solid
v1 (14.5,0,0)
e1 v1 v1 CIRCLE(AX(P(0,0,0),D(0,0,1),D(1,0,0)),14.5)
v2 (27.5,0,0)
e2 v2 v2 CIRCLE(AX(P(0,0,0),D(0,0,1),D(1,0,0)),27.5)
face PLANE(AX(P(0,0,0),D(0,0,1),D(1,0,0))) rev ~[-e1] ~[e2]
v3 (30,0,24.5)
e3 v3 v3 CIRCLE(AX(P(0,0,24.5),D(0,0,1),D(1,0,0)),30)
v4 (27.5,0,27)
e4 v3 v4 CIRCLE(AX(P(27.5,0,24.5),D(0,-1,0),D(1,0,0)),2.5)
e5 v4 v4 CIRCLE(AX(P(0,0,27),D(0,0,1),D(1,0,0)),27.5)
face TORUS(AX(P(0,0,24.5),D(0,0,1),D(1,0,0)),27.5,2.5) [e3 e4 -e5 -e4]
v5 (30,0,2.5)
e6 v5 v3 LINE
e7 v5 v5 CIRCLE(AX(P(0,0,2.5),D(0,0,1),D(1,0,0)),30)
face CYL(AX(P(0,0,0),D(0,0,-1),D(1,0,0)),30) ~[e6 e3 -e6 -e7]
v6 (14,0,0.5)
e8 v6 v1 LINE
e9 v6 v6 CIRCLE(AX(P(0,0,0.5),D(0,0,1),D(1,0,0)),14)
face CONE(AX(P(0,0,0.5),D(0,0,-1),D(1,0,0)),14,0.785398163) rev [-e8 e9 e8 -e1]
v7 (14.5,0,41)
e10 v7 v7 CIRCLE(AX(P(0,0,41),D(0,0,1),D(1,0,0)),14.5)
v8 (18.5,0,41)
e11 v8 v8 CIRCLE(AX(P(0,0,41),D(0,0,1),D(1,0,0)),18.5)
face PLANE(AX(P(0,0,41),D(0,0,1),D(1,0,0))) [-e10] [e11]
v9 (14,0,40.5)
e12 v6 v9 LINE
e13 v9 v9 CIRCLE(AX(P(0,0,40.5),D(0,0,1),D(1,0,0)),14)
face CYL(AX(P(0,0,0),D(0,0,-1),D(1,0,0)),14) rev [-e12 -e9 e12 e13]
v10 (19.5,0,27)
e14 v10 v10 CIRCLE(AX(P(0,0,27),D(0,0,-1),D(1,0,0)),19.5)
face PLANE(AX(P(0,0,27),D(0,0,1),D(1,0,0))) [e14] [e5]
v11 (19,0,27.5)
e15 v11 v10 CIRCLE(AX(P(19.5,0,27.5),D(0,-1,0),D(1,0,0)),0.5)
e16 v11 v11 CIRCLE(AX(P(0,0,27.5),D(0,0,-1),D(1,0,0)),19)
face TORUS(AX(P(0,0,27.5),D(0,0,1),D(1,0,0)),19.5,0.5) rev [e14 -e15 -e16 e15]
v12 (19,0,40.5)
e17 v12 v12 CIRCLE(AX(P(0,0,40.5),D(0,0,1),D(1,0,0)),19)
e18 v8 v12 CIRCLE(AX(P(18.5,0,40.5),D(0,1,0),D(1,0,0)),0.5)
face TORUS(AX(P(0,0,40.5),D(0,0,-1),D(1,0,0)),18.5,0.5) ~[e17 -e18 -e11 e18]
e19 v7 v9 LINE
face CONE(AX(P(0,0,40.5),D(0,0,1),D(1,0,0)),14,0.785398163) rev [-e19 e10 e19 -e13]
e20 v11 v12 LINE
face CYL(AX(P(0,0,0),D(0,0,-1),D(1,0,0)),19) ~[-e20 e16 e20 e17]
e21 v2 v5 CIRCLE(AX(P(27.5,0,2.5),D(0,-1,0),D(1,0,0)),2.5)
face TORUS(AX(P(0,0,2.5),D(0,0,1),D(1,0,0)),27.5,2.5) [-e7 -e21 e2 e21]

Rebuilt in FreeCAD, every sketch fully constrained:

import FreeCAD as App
import Part
import Sketcher
Q = App.Units.Quantity


def edges_at(feature, points):
    """Names of the edges that pass closest to the given points."""
    edges = feature.Shape.Edges
    near = lambda p: min(range(len(edges)), key=lambda i: edges[i].distToShape(Part.Vertex(*p))[0])
    return sorted({f"Edge{near(p) + 1}" for p in points})

doc = App.newDocument("Part")
body = doc.addObject("PartDesign::Body", "Body")

sketch1 = body.newObject("Sketcher::SketchObject", "Sketch")
sketch1.AttachmentSupport = (doc.getObject("XY_Plane"), [""])
sketch1.MapMode = "FlatFace"
sketch1.addGeometry(Part.Circle(App.Vector(0, 0, 0), App.Vector(0, 0, 1), 30), False)
sketch1.addGeometry(Part.Circle(App.Vector(0, 0, 0), App.Vector(0, 0, 1), 14), False)
sketch1.addConstraint(Sketcher.Constraint("Coincident", 0, 3, -1, 1))
sketch1.addConstraint(Sketcher.Constraint("Coincident", 1, 3, -1, 1))
sketch1.addConstraint(Sketcher.Constraint("Diameter", 0, Q("60 mm")))
sketch1.addConstraint(Sketcher.Constraint("Diameter", 1, Q("28 mm")))
pad1 = body.newObject("PartDesign::Pad", "Pad")
pad1.Profile = sketch1
pad1.Length = 27

sketch2 = body.newObject("Sketcher::SketchObject", "Sketch001")
sketch2.AttachmentSupport = (doc.getObject("XY_Plane"), [""])
sketch2.MapMode = "FlatFace"
sketch2.addGeometry(Part.Circle(App.Vector(0, 0, 0), App.Vector(0, 0, 1), 19), False)
sketch2.addGeometry(Part.Circle(App.Vector(0, 0, 0), App.Vector(0, 0, 1), 14), False)
sketch2.addConstraint(Sketcher.Constraint("Coincident", 0, 3, -1, 1))
sketch2.addConstraint(Sketcher.Constraint("Coincident", 1, 3, -1, 1))
sketch2.addConstraint(Sketcher.Constraint("Diameter", 0, Q("38 mm")))
sketch2.addConstraint(Sketcher.Constraint("Diameter", 1, Q("28 mm")))
pad2 = body.newObject("PartDesign::Pad", "Pad001")
pad2.Profile = sketch2
pad2.Length = 41
doc.recompute()

fillet = body.newObject("PartDesign::Fillet", "Fillet")
fillet.Base = (pad2, edges_at(pad2, [(-30, 0, 0), (-30, 0, 27)]))
fillet.Radius = 2.5
doc.recompute()

fillet2 = body.newObject("PartDesign::Fillet", "Fillet001")
fillet2.Base = (fillet, edges_at(fillet, [(-19, 0, 27), (-19, 0, 41)]))
fillet2.Radius = 0.5
doc.recompute()

chamfer = body.newObject("PartDesign::Chamfer", "Chamfer")
chamfer.Base = (fillet2, edges_at(fillet2, [(-14, 0, 41), (-14, 0, 0)]))
chamfer.Size = 0.5

doc.recompute()
